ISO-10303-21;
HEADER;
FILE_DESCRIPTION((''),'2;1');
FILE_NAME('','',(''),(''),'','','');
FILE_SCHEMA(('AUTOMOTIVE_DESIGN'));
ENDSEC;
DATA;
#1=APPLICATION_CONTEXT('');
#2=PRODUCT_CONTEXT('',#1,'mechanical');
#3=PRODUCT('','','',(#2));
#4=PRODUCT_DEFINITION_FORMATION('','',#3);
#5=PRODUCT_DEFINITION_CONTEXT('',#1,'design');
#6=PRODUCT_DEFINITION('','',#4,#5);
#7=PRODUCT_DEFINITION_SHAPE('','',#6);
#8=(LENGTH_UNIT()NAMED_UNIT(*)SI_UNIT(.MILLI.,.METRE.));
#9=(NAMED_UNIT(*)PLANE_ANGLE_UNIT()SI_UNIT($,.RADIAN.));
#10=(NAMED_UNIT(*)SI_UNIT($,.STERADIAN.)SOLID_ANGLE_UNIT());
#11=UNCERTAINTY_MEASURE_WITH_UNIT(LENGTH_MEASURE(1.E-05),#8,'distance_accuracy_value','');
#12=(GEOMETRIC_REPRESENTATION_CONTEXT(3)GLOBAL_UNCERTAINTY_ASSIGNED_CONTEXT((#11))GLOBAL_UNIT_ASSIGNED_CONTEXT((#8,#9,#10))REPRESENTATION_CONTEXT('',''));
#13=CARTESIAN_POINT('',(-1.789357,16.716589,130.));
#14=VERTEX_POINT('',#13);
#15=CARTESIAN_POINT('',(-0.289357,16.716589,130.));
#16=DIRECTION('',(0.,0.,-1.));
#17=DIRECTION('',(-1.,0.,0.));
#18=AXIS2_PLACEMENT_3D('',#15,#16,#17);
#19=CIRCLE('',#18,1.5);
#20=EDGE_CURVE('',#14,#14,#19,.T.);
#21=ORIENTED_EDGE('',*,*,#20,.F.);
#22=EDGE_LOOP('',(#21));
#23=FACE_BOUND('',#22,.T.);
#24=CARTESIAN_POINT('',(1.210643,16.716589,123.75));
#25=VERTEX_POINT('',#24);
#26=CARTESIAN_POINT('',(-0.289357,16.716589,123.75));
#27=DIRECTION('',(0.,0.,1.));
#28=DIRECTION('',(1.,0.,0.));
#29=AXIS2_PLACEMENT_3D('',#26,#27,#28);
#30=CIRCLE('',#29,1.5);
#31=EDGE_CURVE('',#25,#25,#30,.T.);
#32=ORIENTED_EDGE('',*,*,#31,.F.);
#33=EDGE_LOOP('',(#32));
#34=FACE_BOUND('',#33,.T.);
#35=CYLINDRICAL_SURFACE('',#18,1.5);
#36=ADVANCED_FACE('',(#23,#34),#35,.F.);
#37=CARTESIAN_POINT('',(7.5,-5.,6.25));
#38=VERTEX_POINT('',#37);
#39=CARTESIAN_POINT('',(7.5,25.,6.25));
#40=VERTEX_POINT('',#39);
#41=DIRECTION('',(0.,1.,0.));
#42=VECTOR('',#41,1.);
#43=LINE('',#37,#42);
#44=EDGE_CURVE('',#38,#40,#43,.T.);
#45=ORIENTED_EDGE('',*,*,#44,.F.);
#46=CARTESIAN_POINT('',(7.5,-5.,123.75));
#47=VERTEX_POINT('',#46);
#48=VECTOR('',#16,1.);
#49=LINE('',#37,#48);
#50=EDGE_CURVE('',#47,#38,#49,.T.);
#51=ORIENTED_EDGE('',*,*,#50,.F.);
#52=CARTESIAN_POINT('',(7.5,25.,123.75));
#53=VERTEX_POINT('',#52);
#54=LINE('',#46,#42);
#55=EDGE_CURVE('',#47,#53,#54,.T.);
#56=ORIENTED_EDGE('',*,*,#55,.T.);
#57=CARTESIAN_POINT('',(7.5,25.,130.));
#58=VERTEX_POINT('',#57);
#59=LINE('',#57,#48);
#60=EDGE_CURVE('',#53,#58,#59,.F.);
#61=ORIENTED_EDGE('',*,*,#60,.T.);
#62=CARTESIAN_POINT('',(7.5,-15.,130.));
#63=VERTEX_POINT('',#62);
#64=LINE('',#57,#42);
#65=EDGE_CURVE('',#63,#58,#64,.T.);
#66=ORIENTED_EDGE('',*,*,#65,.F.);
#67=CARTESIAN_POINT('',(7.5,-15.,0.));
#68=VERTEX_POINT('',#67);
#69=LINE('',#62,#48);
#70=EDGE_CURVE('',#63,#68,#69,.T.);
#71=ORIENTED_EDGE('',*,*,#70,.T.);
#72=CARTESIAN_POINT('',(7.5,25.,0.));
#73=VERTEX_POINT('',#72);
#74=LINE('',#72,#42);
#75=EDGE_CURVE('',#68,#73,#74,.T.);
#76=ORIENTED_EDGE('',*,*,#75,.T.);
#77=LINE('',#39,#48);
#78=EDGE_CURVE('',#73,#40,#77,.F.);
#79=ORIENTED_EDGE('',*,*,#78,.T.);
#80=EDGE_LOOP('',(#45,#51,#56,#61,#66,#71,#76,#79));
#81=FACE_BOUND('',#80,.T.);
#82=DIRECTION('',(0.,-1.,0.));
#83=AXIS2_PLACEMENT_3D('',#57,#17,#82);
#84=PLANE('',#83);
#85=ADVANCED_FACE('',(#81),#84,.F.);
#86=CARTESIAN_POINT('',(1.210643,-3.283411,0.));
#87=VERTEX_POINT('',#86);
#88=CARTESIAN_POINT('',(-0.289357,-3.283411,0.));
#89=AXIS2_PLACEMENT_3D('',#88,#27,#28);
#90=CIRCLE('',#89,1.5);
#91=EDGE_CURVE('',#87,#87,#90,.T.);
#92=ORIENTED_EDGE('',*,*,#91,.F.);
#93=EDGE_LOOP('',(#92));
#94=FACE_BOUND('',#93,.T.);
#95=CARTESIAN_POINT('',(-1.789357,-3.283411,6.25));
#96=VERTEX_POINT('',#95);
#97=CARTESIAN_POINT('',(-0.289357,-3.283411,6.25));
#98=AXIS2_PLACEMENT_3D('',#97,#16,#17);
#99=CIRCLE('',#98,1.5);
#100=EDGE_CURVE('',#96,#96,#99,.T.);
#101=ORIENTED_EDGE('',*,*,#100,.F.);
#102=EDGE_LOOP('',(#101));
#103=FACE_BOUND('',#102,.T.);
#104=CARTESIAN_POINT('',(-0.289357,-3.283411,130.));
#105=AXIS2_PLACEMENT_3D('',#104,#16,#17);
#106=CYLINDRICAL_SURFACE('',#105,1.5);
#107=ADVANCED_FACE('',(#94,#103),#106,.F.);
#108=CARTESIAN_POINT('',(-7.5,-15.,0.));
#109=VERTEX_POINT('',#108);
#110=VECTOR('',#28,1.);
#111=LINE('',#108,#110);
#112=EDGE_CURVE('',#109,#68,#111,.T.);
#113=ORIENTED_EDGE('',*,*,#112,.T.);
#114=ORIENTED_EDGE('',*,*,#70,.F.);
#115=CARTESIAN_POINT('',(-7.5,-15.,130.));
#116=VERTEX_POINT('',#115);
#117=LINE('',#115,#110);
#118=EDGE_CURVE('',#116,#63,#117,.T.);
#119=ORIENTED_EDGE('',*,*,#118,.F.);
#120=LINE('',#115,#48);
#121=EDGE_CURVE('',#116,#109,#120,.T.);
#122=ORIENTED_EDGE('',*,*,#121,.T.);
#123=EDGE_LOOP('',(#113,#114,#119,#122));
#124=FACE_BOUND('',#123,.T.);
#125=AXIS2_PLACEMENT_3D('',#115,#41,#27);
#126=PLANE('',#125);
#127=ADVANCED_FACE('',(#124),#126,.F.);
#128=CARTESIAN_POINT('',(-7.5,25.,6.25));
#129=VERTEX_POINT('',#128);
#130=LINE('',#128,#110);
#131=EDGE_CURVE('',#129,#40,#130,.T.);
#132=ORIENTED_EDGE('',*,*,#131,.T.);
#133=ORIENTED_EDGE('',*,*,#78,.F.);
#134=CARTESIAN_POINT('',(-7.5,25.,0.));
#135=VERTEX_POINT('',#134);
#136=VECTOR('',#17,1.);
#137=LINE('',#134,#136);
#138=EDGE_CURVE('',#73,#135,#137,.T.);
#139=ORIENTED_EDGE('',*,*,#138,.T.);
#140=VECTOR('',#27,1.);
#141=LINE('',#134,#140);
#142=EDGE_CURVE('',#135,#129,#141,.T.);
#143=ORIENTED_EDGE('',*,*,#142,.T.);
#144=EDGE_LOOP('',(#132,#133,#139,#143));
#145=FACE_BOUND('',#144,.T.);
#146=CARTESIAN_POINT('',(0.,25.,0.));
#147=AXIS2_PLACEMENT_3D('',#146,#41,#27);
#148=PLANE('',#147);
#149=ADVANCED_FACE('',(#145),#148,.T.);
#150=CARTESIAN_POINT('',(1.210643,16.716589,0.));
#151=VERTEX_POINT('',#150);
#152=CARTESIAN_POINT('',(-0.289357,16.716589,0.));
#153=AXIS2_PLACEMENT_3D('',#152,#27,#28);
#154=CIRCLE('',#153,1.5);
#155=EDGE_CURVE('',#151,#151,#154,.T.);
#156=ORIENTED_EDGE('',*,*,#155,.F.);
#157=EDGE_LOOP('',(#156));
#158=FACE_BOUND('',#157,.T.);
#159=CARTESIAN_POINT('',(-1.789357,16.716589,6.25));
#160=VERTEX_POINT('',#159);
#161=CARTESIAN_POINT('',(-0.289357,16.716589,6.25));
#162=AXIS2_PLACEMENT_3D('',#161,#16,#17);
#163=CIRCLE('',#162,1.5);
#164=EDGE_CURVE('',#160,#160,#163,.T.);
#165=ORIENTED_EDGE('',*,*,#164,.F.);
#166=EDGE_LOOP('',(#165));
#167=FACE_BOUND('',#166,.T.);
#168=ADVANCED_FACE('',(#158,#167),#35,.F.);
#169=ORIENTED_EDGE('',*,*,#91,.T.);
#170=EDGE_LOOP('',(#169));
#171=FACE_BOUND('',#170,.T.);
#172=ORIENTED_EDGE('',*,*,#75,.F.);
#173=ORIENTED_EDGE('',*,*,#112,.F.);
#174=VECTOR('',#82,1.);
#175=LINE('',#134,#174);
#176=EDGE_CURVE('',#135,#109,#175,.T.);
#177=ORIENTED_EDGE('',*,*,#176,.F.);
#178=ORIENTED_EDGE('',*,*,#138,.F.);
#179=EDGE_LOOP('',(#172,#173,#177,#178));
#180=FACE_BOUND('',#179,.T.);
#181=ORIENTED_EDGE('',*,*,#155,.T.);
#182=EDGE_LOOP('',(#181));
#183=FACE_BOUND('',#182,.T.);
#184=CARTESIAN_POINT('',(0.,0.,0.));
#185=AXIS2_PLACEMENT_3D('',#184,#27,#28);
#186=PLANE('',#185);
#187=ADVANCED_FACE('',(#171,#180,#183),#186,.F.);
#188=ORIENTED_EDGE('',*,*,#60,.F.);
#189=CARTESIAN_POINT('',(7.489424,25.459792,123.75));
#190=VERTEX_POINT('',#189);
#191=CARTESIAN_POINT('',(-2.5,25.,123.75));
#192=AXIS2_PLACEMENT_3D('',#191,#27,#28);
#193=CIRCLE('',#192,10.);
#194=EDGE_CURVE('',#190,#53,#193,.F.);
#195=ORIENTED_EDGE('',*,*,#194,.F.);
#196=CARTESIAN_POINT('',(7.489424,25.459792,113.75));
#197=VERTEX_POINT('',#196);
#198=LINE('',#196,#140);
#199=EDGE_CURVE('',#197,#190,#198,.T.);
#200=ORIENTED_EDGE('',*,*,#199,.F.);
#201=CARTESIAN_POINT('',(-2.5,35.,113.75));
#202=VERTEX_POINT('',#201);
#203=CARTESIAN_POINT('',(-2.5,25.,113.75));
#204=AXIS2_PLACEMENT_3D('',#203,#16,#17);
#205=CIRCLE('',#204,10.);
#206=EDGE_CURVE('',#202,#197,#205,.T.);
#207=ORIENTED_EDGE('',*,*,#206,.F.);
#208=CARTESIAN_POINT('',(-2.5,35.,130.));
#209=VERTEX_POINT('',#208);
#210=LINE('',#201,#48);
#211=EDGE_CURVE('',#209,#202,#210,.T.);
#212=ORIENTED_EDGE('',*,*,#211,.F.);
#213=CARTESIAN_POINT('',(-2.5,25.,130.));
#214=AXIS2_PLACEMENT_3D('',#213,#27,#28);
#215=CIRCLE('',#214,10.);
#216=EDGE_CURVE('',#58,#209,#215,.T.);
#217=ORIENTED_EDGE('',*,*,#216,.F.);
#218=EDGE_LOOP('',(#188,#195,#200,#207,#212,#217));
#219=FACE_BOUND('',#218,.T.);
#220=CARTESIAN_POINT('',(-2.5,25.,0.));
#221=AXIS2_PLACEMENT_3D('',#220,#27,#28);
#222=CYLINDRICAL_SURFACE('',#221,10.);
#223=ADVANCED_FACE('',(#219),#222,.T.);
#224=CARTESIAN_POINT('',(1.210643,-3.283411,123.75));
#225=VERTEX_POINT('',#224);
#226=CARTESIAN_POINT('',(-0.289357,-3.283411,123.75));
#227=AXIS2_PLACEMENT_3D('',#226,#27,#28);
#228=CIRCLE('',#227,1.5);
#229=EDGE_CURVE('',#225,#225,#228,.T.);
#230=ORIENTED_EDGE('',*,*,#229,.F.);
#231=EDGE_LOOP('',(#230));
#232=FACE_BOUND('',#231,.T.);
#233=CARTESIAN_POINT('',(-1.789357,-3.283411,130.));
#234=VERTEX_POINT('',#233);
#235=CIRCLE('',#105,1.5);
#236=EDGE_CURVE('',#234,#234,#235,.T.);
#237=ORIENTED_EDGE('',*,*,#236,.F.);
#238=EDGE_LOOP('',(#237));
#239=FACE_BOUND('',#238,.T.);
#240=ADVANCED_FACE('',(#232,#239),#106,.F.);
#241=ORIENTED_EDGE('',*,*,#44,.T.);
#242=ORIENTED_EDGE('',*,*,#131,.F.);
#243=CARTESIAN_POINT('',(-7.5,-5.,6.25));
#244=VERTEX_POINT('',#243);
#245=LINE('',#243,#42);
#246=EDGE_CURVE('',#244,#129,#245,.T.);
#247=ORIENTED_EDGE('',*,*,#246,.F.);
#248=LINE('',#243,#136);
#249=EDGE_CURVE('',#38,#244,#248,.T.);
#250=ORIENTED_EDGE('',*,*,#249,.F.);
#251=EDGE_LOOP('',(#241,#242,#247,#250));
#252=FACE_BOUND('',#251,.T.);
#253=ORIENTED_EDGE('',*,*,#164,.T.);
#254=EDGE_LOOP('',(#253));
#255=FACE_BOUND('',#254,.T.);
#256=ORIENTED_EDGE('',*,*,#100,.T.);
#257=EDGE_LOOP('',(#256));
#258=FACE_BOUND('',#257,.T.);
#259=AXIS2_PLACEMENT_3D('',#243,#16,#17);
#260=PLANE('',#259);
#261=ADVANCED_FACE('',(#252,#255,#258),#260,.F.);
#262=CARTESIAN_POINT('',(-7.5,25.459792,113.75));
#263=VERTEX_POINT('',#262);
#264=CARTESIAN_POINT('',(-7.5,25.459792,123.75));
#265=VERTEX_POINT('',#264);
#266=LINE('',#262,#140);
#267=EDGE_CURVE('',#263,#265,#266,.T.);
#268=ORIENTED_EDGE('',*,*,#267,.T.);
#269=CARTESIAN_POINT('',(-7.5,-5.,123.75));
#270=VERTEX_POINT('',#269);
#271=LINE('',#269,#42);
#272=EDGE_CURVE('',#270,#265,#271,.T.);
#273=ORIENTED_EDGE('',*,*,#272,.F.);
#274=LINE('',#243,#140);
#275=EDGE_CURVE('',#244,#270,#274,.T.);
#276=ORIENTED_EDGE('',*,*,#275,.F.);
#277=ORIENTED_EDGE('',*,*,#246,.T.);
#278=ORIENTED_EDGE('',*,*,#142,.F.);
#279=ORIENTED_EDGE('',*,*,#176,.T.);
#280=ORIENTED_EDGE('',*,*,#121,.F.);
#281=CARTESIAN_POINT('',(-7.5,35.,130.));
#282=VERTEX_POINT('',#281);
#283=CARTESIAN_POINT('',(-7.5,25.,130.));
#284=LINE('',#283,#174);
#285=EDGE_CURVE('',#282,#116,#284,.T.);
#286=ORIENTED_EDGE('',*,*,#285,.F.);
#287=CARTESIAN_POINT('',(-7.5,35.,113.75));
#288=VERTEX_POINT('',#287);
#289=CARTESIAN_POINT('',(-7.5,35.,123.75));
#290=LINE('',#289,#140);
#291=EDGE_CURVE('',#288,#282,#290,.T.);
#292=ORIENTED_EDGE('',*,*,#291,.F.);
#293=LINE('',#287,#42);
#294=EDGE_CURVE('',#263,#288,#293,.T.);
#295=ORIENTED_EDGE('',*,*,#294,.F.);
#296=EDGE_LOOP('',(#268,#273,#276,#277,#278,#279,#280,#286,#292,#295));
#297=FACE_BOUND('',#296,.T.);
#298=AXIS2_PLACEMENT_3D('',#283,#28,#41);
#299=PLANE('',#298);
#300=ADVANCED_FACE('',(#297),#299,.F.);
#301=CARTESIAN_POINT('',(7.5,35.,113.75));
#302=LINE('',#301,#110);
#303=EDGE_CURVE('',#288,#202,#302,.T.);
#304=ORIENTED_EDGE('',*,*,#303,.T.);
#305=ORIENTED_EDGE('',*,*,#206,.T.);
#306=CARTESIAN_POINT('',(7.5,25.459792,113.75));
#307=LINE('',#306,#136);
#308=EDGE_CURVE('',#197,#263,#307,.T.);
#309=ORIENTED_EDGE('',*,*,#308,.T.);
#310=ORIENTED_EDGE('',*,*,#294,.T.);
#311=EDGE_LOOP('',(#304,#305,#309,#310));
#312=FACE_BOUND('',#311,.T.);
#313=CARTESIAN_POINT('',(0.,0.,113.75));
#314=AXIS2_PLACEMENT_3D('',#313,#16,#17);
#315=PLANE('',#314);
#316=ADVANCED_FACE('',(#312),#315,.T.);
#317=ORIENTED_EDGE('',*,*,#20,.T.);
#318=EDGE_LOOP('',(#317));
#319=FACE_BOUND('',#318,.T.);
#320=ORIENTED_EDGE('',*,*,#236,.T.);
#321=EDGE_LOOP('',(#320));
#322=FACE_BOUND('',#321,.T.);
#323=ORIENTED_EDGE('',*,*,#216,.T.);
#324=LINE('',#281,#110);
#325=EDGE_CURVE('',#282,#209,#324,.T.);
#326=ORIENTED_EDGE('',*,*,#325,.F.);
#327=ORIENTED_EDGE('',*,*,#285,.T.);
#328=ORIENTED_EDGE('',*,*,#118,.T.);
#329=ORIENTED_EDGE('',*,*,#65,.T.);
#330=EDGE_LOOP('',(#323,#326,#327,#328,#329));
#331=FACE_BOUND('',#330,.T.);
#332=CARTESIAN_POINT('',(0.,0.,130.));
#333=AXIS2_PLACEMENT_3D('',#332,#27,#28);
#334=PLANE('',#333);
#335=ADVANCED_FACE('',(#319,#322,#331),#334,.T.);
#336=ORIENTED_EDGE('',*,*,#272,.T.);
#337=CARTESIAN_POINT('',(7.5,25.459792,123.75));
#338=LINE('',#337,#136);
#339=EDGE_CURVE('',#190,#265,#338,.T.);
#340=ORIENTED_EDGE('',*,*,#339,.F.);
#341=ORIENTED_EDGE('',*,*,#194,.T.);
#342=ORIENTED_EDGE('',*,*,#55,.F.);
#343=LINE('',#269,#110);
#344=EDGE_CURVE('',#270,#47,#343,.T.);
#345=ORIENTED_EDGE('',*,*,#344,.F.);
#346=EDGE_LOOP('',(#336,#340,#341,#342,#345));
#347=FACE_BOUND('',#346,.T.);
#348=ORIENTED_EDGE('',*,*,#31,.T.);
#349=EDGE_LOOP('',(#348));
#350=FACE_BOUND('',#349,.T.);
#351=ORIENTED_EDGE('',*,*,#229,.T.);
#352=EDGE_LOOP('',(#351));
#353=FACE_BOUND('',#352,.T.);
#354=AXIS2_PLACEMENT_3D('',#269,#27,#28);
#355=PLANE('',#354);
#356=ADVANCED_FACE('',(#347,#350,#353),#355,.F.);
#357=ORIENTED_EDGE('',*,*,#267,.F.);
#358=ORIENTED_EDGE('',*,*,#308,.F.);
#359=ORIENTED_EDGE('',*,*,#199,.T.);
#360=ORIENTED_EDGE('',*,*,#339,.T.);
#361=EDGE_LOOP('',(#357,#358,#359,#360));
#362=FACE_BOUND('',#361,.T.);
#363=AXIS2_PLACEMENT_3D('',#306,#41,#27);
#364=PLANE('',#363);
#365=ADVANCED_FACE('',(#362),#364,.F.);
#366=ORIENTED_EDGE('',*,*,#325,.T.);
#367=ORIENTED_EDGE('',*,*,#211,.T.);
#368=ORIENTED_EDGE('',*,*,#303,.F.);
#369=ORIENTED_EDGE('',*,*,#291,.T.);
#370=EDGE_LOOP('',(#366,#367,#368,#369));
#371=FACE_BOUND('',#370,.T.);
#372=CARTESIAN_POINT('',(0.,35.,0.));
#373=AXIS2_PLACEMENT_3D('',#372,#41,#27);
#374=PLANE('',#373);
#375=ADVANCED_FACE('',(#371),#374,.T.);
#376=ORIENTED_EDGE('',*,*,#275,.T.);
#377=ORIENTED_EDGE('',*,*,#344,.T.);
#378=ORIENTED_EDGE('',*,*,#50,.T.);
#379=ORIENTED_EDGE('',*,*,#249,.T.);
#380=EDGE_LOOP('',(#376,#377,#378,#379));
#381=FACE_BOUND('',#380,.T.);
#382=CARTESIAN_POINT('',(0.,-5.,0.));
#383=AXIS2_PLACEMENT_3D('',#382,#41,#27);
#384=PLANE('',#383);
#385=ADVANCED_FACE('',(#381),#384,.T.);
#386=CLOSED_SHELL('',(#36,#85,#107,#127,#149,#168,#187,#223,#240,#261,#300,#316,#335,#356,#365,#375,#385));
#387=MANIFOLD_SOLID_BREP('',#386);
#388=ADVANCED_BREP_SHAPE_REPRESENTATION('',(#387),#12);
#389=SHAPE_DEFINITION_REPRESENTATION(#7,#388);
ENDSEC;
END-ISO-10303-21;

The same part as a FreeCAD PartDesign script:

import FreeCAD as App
import Part
import Sketcher

V = App.Vector
Q = App.Units.Quantity


def edges_at(feature, points):
    """Names of the edges that pass closest to the given points."""
    edges = feature.Shape.Edges
    near = lambda p: min(range(len(edges)), key=lambda i: edges[i].distToShape(Part.Vertex(*p))[0])
    return sorted({f"Edge{near(p) + 1}" for p in points})


def add_polygon(sketch, points):
    """Adds a closed chain of lines whose ends are joined by coincident constraints."""
    first, n = sketch.GeometryCount, len(points)
    for a, b in zip(points, points[1:] + points[:1]):
        sketch.addGeometry(Part.LineSegment(App.Vector(*a, 0), App.Vector(*b, 0)), False)
    for i in range(n):
        sketch.addConstraint(Sketcher.Constraint("Coincident", first + i, 2, first + (i + 1) % n, 1))

doc = App.newDocument("Part")
body = doc.addObject("PartDesign::Body", "Body")

sketch1 = body.newObject("Sketcher::SketchObject", "Sketch")
sketch1.AttachmentSupport = (doc.getObject("XY_Plane"), [""])
sketch1.MapMode = "FlatFace"
add_polygon(sketch1, [(-8, 25), (-8, -15), (8, -15), (8, 25)])
sketch1.addConstraint([
    Sketcher.Constraint("Vertical", 0),
    Sketcher.Constraint("Horizontal", 1),
    Sketcher.Constraint("Vertical", 2),
    Sketcher.Constraint("Horizontal", 3),
    Sketcher.Constraint("DistanceX", 1, 1, 1, 2, Q("15 mm")),
    Sketcher.Constraint("DistanceY", 0, 2, 0, 1, Q("40 mm")),
    Sketcher.Constraint("DistanceY", 0, 2, -1, 1, Q("15 mm")),
    Sketcher.Constraint("DistanceX", 0, 2, -1, 1, Q("7.5 mm")),
])
pad1 = body.newObject("PartDesign::Pad", "Pad")
pad1.Profile = sketch1
pad1.Length = 130

sketch2 = body.newObject("Sketcher::SketchObject", "Sketch001")
sketch2.AttachmentSupport = (doc.getObject("XZ_Plane"), [""])
sketch2.MapMode = "FlatFace"
sketch2.AttachmentOffset = App.Placement(V(0, 0, -25), App.Rotation())
add_polygon(sketch2, [(-8, 6), (-8, 124), (8, 124), (8, 6)])
sketch2.addConstraint([
    Sketcher.Constraint("Vertical", 0),
    Sketcher.Constraint("Horizontal", 1),
    Sketcher.Constraint("Vertical", 2),
    Sketcher.Constraint("Horizontal", 3),
    Sketcher.Constraint("DistanceX", 1, 1, 1, 2, Q("15 mm")),
    Sketcher.Constraint("DistanceY", 0, 1, 0, 2, Q("117.5 mm")),
    Sketcher.Constraint("DistanceX", 0, 2, -1, 1, Q("7.5 mm")),
    Sketcher.Constraint("DistanceY", -1, 1, 0, 2, Q("123.75 mm")),
])
pocket1 = body.newObject("PartDesign::Pocket", "Pocket")
pocket1.Profile = sketch2
pocket1.Length = 30
pocket1.Reversed = True

sketch3 = body.newObject("Sketcher::SketchObject", "Sketch002")
sketch3.AttachmentSupport = (doc.getObject("XY_Plane"), [""])
sketch3.MapMode = "FlatFace"
sketch3.addGeometry([
    Part.Circle(V(-0.3, 16.7, 0), V(0, 0, 1), 1.5),
    Part.Circle(V(-0.3, -3.3, 0), V(0, 0, 1), 1.5),
], False)
sketch3.addConstraint([
    Sketcher.Constraint("Equal", 0, 1),
    Sketcher.Constraint("Vertical", 0, 3, 1, 3),
    Sketcher.Constraint("Diameter", 0, Q("3 mm")),
    Sketcher.Constraint("DistanceY", 1, 3, 0, 3, Q("20 mm")),
    Sketcher.Constraint("DistanceY", -1, 1, 0, 3, Q("16.716589 mm")),
    Sketcher.Constraint("DistanceX", 0, 3, -1, 1, Q("0.289357 mm")),
])
pocket2 = body.newObject("PartDesign::Pocket", "Pocket001")
pocket2.Profile = sketch3
pocket2.Type = "ThroughAll"
pocket2.Midplane = True

sketch4 = body.newObject("Sketcher::SketchObject", "Sketch003")
sketch4.AttachmentSupport = (doc.getObject("XZ_Plane"), [""])
sketch4.MapMode = "FlatFace"
sketch4.AttachmentOffset = App.Placement(V(0, 0, -25), App.Rotation())
add_polygon(sketch4, [(-8, 0), (-8, 6), (8, 6), (8, 0)])
add_polygon(sketch4, [(-8, 124), (-8, 130), (8, 130), (8, 124)])
sketch4.addConstraint([
    Sketcher.Constraint("Vertical", 0),
    Sketcher.Constraint("Horizontal", 1),
    Sketcher.Constraint("Vertical", 2),
    Sketcher.Constraint("Horizontal", 3),
    Sketcher.Constraint("Vertical", 4),
    Sketcher.Constraint("Horizontal", 5),
    Sketcher.Constraint("Vertical", 6),
    Sketcher.Constraint("Horizontal", 7),
    Sketcher.Constraint("Symmetric", 2, 2, 3, 2, -1, 1),
    Sketcher.Constraint("Vertical", 3, 2, 4, 2),
    Sketcher.Constraint("Vertical", 2, 2, 5, 2),
    Sketcher.Constraint("Equal", 2, 4),
    Sketcher.Constraint("DistanceX", 1, 1, 1, 2, Q("15 mm")),
    Sketcher.Constraint("DistanceY", -1, 1, 4, 2, Q("130 mm")),
    Sketcher.Constraint("DistanceY", 0, 1, 0, 2, Q("6.25 mm")),
])
pad2 = body.newObject("PartDesign::Pad", "Pad001")
pad2.Profile = sketch4
pad2.Length = 10
pad2.Reversed = True

sketch5 = body.newObject("Sketcher::SketchObject", "Sketch004")
sketch5.AttachmentSupport = (doc.getObject("XY_Plane"), [""])
sketch5.MapMode = "FlatFace"
sketch5.AttachmentOffset = App.Placement(V(0, 0, 123.75), App.Rotation())
add_polygon(sketch5, [(8, 35), (8, 25), (-8, 25), (-8, 35)])
sketch5.addConstraint([
    Sketcher.Constraint("Vertical", 0),
    Sketcher.Constraint("Horizontal", 1),
    Sketcher.Constraint("Vertical", 2),
    Sketcher.Constraint("Horizontal", 3),
    Sketcher.Constraint("DistanceX", 1, 2, 1, 1, Q("15 mm")),
    Sketcher.Constraint("DistanceY", -1, 1, 2, 2, Q("35 mm")),
    Sketcher.Constraint("DistanceX", -1, 1, 0, 2, Q("7.5 mm")),
    Sketcher.Constraint("DistanceY", 0, 2, 0, 1, Q("9.540208 mm")),
])
pad3 = body.newObject("PartDesign::Pad", "Pad002")
pad3.Profile = sketch5
pad3.Length = 10
pad3.Reversed = True
doc.recompute()

fillet = body.newObject("PartDesign::Fillet", "Fillet")
fillet.Base = (pad3, edges_at(pad3, [(7.5, 35, 3.125), (7.5, 35, 121.875)]))
fillet.Radius = 10

sketch6 = body.newObject("Sketcher::SketchObject", "Sketch005")
sketch6.AttachmentSupport = (doc.getObject("XZ_Plane"), [""])
sketch6.MapMode = "FlatFace"
sketch6.AttachmentOffset = App.Placement(V(0, 0, -35), App.Rotation())
add_polygon(sketch6, [(-8, 0), (-8, 6), (8, 6), (8, 0)])
sketch6.addConstraint([
    Sketcher.Constraint("Vertical", 0),
    Sketcher.Constraint("Horizontal", 1),
    Sketcher.Constraint("Vertical", 2),
    Sketcher.Constraint("Horizontal", 3),
    Sketcher.Constraint("Symmetric", 2, 2, 3, 2, -1, 1),
    Sketcher.Constraint("DistanceX", 1, 1, 1, 2, Q("15 mm")),
    Sketcher.Constraint("DistanceY", 0, 1, 0, 2, Q("6.25 mm")),
])
pocket3 = body.newObject("PartDesign::Pocket", "Pocket002")
pocket3.Profile = sketch6
pocket3.Length = 10
pocket3.Reversed = True

doc.recompute()
